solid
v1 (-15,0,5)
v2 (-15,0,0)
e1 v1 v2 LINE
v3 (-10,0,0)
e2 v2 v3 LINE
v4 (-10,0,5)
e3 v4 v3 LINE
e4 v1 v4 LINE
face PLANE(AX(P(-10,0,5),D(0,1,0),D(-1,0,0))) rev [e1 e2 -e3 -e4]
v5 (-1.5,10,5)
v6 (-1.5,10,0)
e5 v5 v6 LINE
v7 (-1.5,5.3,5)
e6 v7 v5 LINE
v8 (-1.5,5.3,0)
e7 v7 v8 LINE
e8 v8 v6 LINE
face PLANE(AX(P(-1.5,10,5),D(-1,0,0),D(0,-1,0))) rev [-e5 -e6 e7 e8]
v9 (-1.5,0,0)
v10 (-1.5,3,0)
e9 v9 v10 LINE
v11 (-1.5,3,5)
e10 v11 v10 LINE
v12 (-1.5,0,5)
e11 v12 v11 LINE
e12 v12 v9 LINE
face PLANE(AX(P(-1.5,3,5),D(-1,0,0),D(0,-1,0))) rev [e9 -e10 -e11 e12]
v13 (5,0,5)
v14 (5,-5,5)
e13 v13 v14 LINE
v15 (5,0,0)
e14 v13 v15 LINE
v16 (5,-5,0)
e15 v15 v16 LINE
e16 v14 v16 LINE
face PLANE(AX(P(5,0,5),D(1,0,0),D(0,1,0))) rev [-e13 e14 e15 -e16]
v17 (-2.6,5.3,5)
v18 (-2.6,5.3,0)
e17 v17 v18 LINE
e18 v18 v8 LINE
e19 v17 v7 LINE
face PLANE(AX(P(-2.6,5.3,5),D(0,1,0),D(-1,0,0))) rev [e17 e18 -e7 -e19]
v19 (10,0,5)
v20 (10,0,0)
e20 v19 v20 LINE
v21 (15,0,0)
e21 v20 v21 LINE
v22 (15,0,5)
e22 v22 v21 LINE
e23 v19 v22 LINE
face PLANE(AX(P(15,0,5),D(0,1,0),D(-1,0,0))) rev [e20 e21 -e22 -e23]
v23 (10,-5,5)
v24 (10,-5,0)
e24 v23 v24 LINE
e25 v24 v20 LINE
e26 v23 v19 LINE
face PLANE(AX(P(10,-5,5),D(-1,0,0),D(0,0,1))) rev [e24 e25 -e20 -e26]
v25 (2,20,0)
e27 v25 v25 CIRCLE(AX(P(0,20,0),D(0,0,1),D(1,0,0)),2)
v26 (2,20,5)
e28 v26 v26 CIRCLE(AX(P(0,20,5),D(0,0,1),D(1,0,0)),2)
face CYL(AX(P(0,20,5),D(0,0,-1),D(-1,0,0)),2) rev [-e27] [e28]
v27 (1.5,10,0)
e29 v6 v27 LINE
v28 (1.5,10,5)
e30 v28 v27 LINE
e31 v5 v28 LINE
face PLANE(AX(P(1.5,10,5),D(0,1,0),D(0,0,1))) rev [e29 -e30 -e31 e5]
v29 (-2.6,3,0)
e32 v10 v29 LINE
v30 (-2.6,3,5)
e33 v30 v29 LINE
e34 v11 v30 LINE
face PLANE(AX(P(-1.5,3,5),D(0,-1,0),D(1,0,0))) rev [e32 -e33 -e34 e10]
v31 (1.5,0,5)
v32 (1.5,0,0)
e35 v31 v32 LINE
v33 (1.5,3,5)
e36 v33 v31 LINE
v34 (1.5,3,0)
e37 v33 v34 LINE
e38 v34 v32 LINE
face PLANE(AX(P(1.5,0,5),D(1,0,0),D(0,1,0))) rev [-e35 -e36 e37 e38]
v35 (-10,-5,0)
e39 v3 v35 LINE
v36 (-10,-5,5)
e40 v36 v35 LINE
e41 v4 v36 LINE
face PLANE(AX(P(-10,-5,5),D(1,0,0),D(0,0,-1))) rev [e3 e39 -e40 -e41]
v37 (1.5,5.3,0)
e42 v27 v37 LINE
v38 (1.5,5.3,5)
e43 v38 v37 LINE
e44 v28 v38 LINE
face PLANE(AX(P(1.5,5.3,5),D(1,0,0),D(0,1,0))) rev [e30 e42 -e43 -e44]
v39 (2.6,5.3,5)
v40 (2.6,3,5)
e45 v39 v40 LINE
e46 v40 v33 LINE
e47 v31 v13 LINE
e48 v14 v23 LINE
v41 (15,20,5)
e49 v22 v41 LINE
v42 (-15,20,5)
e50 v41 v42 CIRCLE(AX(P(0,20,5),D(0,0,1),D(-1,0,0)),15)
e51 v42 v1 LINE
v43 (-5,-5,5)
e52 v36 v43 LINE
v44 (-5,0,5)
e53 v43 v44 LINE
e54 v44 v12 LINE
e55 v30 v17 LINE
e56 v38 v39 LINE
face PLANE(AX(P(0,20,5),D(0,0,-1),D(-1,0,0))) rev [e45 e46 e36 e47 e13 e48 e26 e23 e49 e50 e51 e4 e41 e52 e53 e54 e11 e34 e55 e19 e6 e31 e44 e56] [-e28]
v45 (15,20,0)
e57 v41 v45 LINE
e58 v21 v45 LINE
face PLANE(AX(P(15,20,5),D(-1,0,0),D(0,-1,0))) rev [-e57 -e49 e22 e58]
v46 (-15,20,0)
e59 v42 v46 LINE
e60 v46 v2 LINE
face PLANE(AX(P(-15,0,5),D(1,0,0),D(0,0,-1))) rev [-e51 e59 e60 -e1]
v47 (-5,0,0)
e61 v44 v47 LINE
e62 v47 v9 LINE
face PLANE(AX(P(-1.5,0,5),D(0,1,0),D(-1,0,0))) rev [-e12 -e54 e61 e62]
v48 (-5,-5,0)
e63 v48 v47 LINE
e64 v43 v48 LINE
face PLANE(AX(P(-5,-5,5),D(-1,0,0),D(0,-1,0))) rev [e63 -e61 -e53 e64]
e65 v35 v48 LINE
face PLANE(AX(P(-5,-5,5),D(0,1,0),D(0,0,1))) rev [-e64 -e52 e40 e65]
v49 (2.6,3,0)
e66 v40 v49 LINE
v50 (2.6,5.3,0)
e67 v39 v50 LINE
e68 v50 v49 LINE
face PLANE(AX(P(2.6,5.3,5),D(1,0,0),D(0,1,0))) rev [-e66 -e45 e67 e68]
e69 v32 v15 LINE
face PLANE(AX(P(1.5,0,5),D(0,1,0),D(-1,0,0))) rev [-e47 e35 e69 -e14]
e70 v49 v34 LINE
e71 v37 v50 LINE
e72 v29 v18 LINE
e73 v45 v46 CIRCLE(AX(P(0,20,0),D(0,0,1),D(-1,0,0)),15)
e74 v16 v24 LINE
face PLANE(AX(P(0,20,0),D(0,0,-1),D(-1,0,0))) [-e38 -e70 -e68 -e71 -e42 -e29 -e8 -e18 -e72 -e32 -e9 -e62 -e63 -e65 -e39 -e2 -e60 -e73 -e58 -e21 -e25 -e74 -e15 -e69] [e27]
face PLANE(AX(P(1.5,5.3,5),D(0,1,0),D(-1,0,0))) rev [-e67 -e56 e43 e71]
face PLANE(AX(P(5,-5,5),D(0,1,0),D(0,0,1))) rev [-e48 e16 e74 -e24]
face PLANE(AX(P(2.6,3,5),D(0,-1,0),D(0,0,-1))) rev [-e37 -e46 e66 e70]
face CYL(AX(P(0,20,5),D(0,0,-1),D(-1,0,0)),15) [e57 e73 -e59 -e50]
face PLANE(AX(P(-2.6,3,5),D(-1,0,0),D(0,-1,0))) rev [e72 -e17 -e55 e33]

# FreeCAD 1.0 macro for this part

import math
import FreeCAD as App
import Part
import Sketcher

doc = App.newDocument("Part")
body = doc.addObject("PartDesign::Body", "Body")

sketch1 = doc.addObject("Sketcher::SketchObject", "Sketch")
body.addObject(sketch1)
sketch1.AttachmentSupport = (doc.XY_Plane, [""])
sketch1.MapMode = "FlatFace"
sketch1.addGeometry([
    Part.LineSegment(App.Vector(-15, 0, 0), App.Vector(-10, 0, 0)),
    Part.LineSegment(App.Vector(-10, 0, 0), App.Vector(-10, -5, 0)),
    Part.LineSegment(App.Vector(-10, -5, 0), App.Vector(-5, -5, 0)),
    Part.LineSegment(App.Vector(-5, -5, 0), App.Vector(-5, 0, 0)),
    Part.LineSegment(App.Vector(-5, 0, 0), App.Vector(-1.5, 0, 0)),
    Part.LineSegment(App.Vector(-1.5, 0, 0), App.Vector(-1.5, 3, 0)),
    Part.LineSegment(App.Vector(-1.5, 3, 0), App.Vector(-2.6, 3, 0)),
    Part.LineSegment(App.Vector(-2.6, 3, 0), App.Vector(-2.6, 5.3, 0)),
    Part.LineSegment(App.Vector(-2.6, 5.3, 0), App.Vector(-1.5, 5.3, 0)),
    Part.LineSegment(App.Vector(-1.5, 5.3, 0), App.Vector(-1.5, 10, 0)),
    Part.LineSegment(App.Vector(-1.5, 10, 0), App.Vector(1.5, 10, 0)),
    Part.LineSegment(App.Vector(1.5, 10, 0), App.Vector(1.5, 5.3, 0)),
    Part.LineSegment(App.Vector(1.5, 5.3, 0), App.Vector(2.6, 5.3, 0)),
    Part.LineSegment(App.Vector(2.6, 5.3, 0), App.Vector(2.6, 3, 0)),
    Part.LineSegment(App.Vector(2.6, 3, 0), App.Vector(1.5, 3, 0)),
    Part.LineSegment(App.Vector(1.5, 3, 0), App.Vector(1.5, 0, 0)),
    Part.LineSegment(App.Vector(1.5, 0, 0), App.Vector(5, 0, 0)),
    Part.LineSegment(App.Vector(5, 0, 0), App.Vector(5, -5, 0)),
    Part.LineSegment(App.Vector(5, -5, 0), App.Vector(10, -5, 0)),
    Part.LineSegment(App.Vector(10, -5, 0), App.Vector(10, 0, 0)),
    Part.LineSegment(App.Vector(10, 0, 0), App.Vector(15, 0, 0)),
    Part.LineSegment(App.Vector(15, 0, 0), App.Vector(15, 20, 0)),
    Part.ArcOfCircle(Part.Circle(App.Vector(0, 20, 0), App.Vector(0, 0, 1), 15), math.radians(0), math.radians(180)),
    Part.LineSegment(App.Vector(-15, 20, 0), App.Vector(-15, 0, 0)),
    Part.Circle(App.Vector(0, 20, 0), App.Vector(0, 0, 1), 2),
], False)
sketch1.addConstraint([
    Sketcher.Constraint("Coincident", 0, 2, 1, 1),
    Sketcher.Constraint("Coincident", 1, 2, 2, 1),
    Sketcher.Constraint("Coincident", 2, 2, 3, 1),
    Sketcher.Constraint("Coincident", 3, 2, 4, 1),
    Sketcher.Constraint("Coincident", 4, 2, 5, 1),
    Sketcher.Constraint("Coincident", 5, 2, 6, 1),
    Sketcher.Constraint("Coincident", 6, 2, 7, 1),
    Sketcher.Constraint("Coincident", 7, 2, 8, 1),
    Sketcher.Constraint("Coincident", 8, 2, 9, 1),
    Sketcher.Constraint("Coincident", 9, 2, 10, 1),
    Sketcher.Constraint("Coincident", 10, 2, 11, 1),
    Sketcher.Constraint("Coincident", 11, 2, 12, 1),
    Sketcher.Constraint("Coincident", 12, 2, 13, 1),
    Sketcher.Constraint("Coincident", 13, 2, 14, 1),
    Sketcher.Constraint("Coincident", 14, 2, 15, 1),
    Sketcher.Constraint("Coincident", 15, 2, 16, 1),
    Sketcher.Constraint("Coincident", 16, 2, 17, 1),
    Sketcher.Constraint("Coincident", 17, 2, 18, 1),
    Sketcher.Constraint("Coincident", 18, 2, 19, 1),
    Sketcher.Constraint("Coincident", 19, 2, 20, 1),
    Sketcher.Constraint("Coincident", 20, 2, 21, 1),
    Sketcher.Constraint("Tangent", 21, 2, 22, 1),
    Sketcher.Constraint("Tangent", 22, 2, 23, 1),
    Sketcher.Constraint("Coincident", 23, 2, 0, 1),
    Sketcher.Constraint("Horizontal", 0),
    Sketcher.Constraint("Vertical", 1),
    Sketcher.Constraint("Horizontal", 2),
    Sketcher.Constraint("Vertical", 3),
    Sketcher.Constraint("Horizontal", 4),
    Sketcher.Constraint("Vertical", 5),
    Sketcher.Constraint("Horizontal", 6),
    Sketcher.Constraint("Vertical", 7),
    Sketcher.Constraint("Horizontal", 8),
    Sketcher.Constraint("Vertical", 9),
    Sketcher.Constraint("Horizontal", 10),
    Sketcher.Constraint("Vertical", 11),
    Sketcher.Constraint("Horizontal", 12),
    Sketcher.Constraint("Vertical", 13),
    Sketcher.Constraint("Horizontal", 14),
    Sketcher.Constraint("Vertical", 15),
    Sketcher.Constraint("Horizontal", 16),
    Sketcher.Constraint("Vertical", 17),
    Sketcher.Constraint("Horizontal", 18),
    Sketcher.Constraint("Vertical", 19),
    Sketcher.Constraint("Horizontal", 20),
    Sketcher.Constraint("Vertical", 21),
    Sketcher.Constraint("Vertical", 23),
    Sketcher.Constraint("Coincident", 24, 3, 22, 3),
    Sketcher.Constraint("Symmetric", 4, 2, 15, 2, -1, 1),
    Sketcher.Constraint("Symmetric", 0, 2, 19, 2, -1, 1),
    Sketcher.Constraint("Symmetric", 8, 2, 11, 2, -2),
    Sketcher.Constraint("Symmetric", 6, 2, 13, 2, -2),
    Sketcher.Constraint("Symmetric", 3, 2, 16, 2, -2),
    Sketcher.Constraint("Symmetric", 20, 2, 23, 2, -2),
    Sketcher.Constraint("Horizontal", 2, 2, 17, 2),
    Sketcher.Constraint("Vertical", 5, 2, 8, 2),
    Sketcher.Constraint("Equal", 0, 2),
    Sketcher.Constraint("Equal", 20, 1),
    Sketcher.Constraint("Equal", 10, 5),
    Sketcher.Constraint("Diameter", 24, 4.0),
    Sketcher.Constraint("Radius", 22, 15.0),
    Sketcher.Constraint("DistanceX", 0, 1, 0, 2, 5.0),
    Sketcher.Constraint("DistanceX", 10, 1, 10, 2, 3.0),
    Sketcher.Constraint("DistanceY", 21, 1, 21, 2, 20.0),
    Sketcher.Constraint("DistanceX", 6, 2, 6, 1, 1.1),
    Sketcher.Constraint("DistanceY", 7, 1, 7, 2, 2.3),
    Sketcher.Constraint("DistanceY", 9, 1, 9, 2, 4.7),
])
pad1 = doc.addObject("PartDesign::Pad", "Pad")
body.addObject(pad1)
pad1.Profile = sketch1
pad1.Length = 5

doc.recompute()
